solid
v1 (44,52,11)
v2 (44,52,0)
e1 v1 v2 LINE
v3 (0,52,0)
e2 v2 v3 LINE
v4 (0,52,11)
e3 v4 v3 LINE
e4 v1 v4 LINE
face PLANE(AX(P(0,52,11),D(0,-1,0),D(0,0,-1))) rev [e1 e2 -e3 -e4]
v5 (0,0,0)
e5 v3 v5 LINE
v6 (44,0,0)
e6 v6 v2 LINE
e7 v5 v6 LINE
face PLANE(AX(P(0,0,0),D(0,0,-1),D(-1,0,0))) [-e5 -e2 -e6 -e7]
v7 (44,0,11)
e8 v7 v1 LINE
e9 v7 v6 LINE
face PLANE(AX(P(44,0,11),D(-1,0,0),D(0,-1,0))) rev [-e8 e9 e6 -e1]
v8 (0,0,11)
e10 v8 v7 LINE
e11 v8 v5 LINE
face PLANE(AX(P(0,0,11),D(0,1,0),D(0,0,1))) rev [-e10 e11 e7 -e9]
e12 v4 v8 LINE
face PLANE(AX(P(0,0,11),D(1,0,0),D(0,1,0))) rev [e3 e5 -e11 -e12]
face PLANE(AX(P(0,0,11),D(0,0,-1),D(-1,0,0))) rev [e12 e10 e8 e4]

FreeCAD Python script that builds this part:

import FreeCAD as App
import Part
import Sketcher

V = App.Vector


def add_polygon(sketch, points):
    """Adds a closed chain of lines whose ends are joined by coincident constraints."""
    first, n = sketch.GeometryCount, len(points)
    for a, b in zip(points, points[1:] + points[:1]):
        sketch.addGeometry(Part.LineSegment(App.Vector(*a, 0), App.Vector(*b, 0)), False)
    for i in range(n):
        sketch.addConstraint(Sketcher.Constraint("Coincident", first + i, 2, first + (i + 1) % n, 1))

doc = App.newDocument("Part")
body = doc.addObject("PartDesign::Body", "Body")

sketch1 = doc.addObject("Sketcher::SketchObject", "Sketch")
body.addObject(sketch1)
sketch1.AttachmentSupport = (doc.XY_Plane, [""])
sketch1.MapMode = "FlatFace"
add_polygon(sketch1, [(0, 52), (0, 0), (44, 0), (44, 52)])
sketch1.addConstraint([
    Sketcher.Constraint("Vertical", 0),
    Sketcher.Constraint("Horizontal", 1),
    Sketcher.Constraint("Vertical", 2),
    Sketcher.Constraint("Horizontal", 3),
    Sketcher.Constraint("Coincident", 0, 2, -1, 1),
    Sketcher.Constraint("DistanceX", 1, 1, 1, 2, 44.0),
    Sketcher.Constraint("DistanceY", 0, 2, 0, 1, 52.0),
])
pad1 = doc.addObject("PartDesign::Pad", "Pad")
body.addObject(pad1)
pad1.Profile = sketch1
pad1.Length = 11

doc.recompute()
